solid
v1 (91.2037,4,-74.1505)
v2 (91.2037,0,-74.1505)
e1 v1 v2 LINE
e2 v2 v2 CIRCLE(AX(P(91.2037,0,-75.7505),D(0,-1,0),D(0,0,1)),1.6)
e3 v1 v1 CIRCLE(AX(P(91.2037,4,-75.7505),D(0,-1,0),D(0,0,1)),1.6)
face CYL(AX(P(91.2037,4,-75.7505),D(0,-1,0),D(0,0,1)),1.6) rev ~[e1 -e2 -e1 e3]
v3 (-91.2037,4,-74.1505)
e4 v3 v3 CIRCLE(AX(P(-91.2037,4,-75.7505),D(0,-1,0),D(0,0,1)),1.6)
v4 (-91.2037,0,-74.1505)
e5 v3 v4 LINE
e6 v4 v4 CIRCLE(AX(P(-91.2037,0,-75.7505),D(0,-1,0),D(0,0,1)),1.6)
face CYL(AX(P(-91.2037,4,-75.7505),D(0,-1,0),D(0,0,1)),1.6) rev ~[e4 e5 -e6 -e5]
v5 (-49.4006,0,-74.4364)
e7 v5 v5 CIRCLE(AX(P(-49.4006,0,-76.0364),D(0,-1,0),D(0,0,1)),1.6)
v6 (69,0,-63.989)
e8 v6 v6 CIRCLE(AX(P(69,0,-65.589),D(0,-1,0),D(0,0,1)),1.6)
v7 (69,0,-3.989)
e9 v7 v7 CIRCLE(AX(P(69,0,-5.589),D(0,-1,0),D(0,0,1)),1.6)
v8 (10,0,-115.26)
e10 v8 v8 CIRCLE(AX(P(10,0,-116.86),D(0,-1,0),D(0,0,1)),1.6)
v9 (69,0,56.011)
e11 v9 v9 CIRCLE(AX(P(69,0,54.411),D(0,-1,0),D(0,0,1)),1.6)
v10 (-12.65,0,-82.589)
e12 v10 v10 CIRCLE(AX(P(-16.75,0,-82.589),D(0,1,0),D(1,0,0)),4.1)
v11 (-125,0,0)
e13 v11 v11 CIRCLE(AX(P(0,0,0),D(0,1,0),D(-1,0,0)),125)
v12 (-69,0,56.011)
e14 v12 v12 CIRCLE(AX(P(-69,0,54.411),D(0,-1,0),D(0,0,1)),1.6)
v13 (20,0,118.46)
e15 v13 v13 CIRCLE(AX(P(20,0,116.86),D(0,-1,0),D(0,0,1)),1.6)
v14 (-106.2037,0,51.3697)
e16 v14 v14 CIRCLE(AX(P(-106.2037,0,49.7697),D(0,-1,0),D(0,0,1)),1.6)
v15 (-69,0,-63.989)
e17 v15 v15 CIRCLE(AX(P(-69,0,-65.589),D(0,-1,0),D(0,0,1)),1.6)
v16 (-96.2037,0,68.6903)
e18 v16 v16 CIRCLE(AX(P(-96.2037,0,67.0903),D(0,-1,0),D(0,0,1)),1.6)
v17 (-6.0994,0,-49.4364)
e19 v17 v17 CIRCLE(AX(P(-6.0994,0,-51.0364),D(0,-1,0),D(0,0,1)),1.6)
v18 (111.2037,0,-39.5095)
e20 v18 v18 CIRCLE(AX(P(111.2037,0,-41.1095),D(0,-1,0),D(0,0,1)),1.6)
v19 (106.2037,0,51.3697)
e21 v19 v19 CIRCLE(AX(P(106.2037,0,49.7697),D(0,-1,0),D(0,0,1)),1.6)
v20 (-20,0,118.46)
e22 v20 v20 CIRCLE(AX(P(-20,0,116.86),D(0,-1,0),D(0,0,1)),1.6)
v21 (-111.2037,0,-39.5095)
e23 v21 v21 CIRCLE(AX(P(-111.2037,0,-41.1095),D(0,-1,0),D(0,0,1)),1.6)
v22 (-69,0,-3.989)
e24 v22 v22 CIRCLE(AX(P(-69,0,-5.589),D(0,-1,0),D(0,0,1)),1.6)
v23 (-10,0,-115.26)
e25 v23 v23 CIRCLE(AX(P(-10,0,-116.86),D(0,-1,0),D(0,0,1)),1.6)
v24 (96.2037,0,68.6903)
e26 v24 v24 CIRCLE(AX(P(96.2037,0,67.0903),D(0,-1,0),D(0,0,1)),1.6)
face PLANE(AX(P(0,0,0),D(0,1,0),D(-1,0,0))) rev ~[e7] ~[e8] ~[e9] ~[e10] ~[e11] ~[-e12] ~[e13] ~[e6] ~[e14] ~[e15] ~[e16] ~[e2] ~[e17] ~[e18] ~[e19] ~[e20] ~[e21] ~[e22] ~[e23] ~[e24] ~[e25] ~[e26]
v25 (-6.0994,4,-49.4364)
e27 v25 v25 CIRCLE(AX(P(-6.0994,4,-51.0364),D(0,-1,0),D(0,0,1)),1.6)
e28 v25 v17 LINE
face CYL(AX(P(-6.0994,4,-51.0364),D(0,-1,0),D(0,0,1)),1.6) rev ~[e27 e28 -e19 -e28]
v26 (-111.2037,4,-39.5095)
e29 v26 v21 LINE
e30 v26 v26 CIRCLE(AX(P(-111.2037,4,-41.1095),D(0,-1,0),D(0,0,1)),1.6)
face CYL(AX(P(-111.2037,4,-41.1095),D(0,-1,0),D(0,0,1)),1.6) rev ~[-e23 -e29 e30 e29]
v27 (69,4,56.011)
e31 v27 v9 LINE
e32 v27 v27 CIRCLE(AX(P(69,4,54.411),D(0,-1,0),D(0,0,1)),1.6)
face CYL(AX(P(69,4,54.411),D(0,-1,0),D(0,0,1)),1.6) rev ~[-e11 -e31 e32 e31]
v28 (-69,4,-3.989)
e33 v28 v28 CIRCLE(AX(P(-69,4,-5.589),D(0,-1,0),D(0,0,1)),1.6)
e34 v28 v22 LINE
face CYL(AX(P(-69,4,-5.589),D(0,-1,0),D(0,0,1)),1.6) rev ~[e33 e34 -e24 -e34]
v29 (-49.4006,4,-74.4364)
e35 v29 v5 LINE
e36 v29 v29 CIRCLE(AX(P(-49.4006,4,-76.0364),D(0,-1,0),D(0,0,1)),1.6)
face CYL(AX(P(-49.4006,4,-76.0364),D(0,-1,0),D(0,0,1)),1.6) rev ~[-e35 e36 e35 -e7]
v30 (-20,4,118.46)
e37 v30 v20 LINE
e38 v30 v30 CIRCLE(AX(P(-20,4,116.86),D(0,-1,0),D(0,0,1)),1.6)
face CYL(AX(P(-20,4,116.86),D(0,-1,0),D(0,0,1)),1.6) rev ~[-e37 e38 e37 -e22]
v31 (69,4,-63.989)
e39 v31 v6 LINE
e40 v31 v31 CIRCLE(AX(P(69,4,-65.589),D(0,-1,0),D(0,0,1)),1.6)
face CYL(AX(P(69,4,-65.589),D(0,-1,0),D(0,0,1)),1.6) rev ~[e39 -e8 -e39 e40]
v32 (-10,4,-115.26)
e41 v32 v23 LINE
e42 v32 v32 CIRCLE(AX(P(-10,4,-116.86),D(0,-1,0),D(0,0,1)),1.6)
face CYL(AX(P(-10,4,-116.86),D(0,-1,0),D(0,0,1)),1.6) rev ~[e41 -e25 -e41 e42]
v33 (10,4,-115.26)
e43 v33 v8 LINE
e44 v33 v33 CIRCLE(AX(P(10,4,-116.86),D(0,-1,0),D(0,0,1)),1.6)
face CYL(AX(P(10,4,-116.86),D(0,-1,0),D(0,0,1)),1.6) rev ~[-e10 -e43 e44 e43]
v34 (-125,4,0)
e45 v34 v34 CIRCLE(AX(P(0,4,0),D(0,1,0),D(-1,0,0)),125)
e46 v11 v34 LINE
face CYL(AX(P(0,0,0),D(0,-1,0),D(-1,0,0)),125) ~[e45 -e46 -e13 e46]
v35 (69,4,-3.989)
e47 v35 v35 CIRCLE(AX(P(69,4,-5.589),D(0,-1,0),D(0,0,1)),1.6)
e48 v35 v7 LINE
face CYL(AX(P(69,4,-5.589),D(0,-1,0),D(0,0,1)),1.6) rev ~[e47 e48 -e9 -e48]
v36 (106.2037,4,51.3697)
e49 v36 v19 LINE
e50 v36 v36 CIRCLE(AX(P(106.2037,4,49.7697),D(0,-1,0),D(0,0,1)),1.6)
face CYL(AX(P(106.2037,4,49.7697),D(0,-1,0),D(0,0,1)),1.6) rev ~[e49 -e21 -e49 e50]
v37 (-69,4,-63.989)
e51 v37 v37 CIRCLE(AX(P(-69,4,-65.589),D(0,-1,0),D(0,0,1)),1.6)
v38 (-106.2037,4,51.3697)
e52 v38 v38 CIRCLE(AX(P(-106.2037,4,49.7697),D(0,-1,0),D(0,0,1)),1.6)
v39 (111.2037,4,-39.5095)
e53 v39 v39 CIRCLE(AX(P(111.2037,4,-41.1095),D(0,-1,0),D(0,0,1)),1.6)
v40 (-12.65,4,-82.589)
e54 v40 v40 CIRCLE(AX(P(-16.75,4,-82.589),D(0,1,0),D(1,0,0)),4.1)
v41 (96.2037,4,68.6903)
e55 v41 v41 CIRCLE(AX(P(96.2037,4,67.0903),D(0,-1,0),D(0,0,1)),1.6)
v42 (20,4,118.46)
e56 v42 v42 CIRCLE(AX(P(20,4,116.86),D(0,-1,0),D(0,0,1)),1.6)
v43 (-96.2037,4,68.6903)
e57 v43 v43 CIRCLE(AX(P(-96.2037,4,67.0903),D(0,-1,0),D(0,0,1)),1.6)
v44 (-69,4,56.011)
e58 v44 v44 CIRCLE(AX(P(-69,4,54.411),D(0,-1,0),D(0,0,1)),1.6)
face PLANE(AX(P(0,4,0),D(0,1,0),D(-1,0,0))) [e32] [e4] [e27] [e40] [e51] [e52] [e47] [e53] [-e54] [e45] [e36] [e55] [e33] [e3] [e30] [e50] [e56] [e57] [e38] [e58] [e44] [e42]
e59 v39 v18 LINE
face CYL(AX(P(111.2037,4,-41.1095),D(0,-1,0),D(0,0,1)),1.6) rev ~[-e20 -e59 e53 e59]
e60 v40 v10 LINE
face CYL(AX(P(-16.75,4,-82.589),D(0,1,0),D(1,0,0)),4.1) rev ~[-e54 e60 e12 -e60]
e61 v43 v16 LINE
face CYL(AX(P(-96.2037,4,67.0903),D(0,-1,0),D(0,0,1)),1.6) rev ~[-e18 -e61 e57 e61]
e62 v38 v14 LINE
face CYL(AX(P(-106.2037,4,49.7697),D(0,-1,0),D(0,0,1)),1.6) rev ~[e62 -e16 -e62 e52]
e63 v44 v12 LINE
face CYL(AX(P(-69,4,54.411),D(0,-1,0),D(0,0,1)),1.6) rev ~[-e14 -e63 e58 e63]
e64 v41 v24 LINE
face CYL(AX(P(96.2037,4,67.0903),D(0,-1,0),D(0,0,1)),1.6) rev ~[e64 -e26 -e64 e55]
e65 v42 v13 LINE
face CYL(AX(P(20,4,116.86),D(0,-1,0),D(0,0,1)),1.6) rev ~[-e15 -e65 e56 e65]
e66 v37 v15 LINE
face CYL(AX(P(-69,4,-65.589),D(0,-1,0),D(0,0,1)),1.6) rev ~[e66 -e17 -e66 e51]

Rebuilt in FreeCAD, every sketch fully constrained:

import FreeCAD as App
import Part
import Sketcher

V = App.Vector

doc = App.newDocument("Part")
params = doc.addObject("Spreadsheet::Sheet", "Params")
for row, (alias, value) in enumerate([
    ("sketch1_diameter", "250 mm"),
    ("pad1_length", "4 mm"),
    ("sketch2_diameter", "8.2 mm"),
    ("pocket1_length", "4 mm"),
    ("sketch3_diameter", "3.2 mm"),
    ("hole_diameter", "3.2 mm"),
    ("sketch4_diameter", "3.2 mm"),
    ("hole2_diameter", "3.2 mm"),
    ("hole2_depth", "10 mm"),
    ("sketch5_diameter", "3.2 mm"),
    ("hole3_diameter", "3.2 mm"),
    ("hole3_depth", "10 mm"),
    ("sketch6_diameter", "3.2 mm"),
    ("hole4_diameter", "3.2 mm"),
    ("hole4_depth", "10 mm"),
], start=1):
    params.set(f"A{row}", alias)
    params.set(f"B{row}", "=" + value)
    params.setAlias(f"B{row}", alias)

body = doc.addObject("PartDesign::Body", "Body")

# Sketch on XZ plane
sketch1 = body.newObject("Sketcher::SketchObject", "Sketch")
sketch1.AttachmentSupport = (doc.getObject("XZ_Plane"), [""])
sketch1.MapMode = "FlatFace"
sketch1.addGeometry(Part.Circle(V(0, 0, 0), V(0, 0, 1), 125), False)
sketch1.addConstraint(Sketcher.Constraint("Coincident", 0, 3, -1, 1))
sketch1.addConstraint(Sketcher.Constraint("Diameter", 0, 250.0))
sketch1.setExpression("Constraints[1]", "Params.sketch1_diameter")
pad1 = body.newObject("PartDesign::Pad", "Pad")
pad1.Profile = sketch1
pad1.setExpression("Length", "Params.pad1_length")
pad1.Reversed = True

# Sketch on XZ plane
sketch2 = body.newObject("Sketcher::SketchObject", "Sketch001")
sketch2.AttachmentSupport = (doc.getObject("XZ_Plane"), [""])
sketch2.MapMode = "FlatFace"
sketch2.AttachmentOffset = App.Placement(V(0, 0, -4), App.Rotation())
sketch2.addGeometry(Part.Circle(V(-16.8, -82.6, 0), V(0, 0, 1), 4.1), False)
sketch2.addConstraint(Sketcher.Constraint("Diameter", 0, 8.2))
sketch2.addConstraint(Sketcher.Constraint("DistanceX", 0, 3, -1, 1, 16.75))
sketch2.addConstraint(Sketcher.Constraint("DistanceY", 0, 3, -1, 1, 82.589))
sketch2.setExpression("Constraints[0]", "Params.sketch2_diameter")
pocket1 = body.newObject("PartDesign::Pocket", "Pocket")
pocket1.Profile = sketch2
pocket1.setExpression("Length", "Params.pocket1_length")
pocket1.Reversed = True

# Sketch on XZ plane
sketch3 = body.newObject("Sketcher::SketchObject", "Sketch002")
sketch3.AttachmentSupport = (doc.getObject("XZ_Plane"), [""])
sketch3.MapMode = "FlatFace"
sketch3.AttachmentOffset = App.Placement(V(0, 0, -4), App.Rotation())
sketch3.addGeometry(Part.Circle(V(69, 54.4, 0), V(0, 0, 1), 1.6), False)
sketch3.addGeometry(Part.Circle(V(69, -5.6, 0), V(0, 0, 1), 1.6), False)
sketch3.addGeometry(Part.Circle(V(69, -65.6, 0), V(0, 0, 1), 1.6), False)
sketch3.addGeometry(Part.Circle(V(-69, -65.6, 0), V(0, 0, 1), 1.6), False)
sketch3.addGeometry(Part.Circle(V(-69, -5.6, 0), V(0, 0, 1), 1.6), False)
sketch3.addGeometry(Part.Circle(V(-69, 54.4, 0), V(0, 0, 1), 1.6), False)
sketch3.addConstraint(Sketcher.Constraint("Equal", 0, 1))
sketch3.addConstraint(Sketcher.Constraint("Equal", 1, 2))
sketch3.addConstraint(Sketcher.Constraint("Equal", 2, 3))
sketch3.addConstraint(Sketcher.Constraint("Equal", 3, 4))
sketch3.addConstraint(Sketcher.Constraint("Equal", 4, 5))
sketch3.addConstraint(Sketcher.Constraint("Symmetric", 2, 3, 3, 3, -2))
sketch3.addConstraint(Sketcher.Constraint("Symmetric", 1, 3, 4, 3, -2))
sketch3.addConstraint(Sketcher.Constraint("Symmetric", 0, 3, 5, 3, -2))
sketch3.addConstraint(Sketcher.Constraint("Vertical", 0, 3, 1, 3))
sketch3.addConstraint(Sketcher.Constraint("Vertical", 1, 3, 2, 3))
sketch3.addConstraint(Sketcher.Constraint("Diameter", 0, 3.2))
sketch3.addConstraint(Sketcher.Constraint("DistanceX", -1, 1, 0, 3, 69.0))
sketch3.addConstraint(Sketcher.Constraint("DistanceY", 1, 3, 0, 3, 60.0))
sketch3.addConstraint(Sketcher.Constraint("DistanceY", 2, 3, 1, 3, 60.0))
sketch3.addConstraint(Sketcher.Constraint("DistanceY", -1, 1, 0, 3, 54.411))
sketch3.setExpression("Constraints[10]", "Params.sketch3_diameter")
doc.recompute()
hole = body.newObject("PartDesign::Hole", "Hole")
hole.Profile = sketch3
hole.ThreadType = "None"
hole.setExpression("Diameter", "Params.hole_diameter")
hole.DepthType = "ThroughAll"
hole.Reversed = True

# Sketch on XZ plane
sketch4 = body.newObject("Sketcher::SketchObject", "Sketch003")
sketch4.AttachmentSupport = (doc.getObject("XZ_Plane"), [""])
sketch4.MapMode = "FlatFace"
sketch4.AttachmentOffset = App.Placement(V(0, 0, -4), App.Rotation())
sketch4.addGeometry(Part.Circle(V(20, 116.9, 0), V(0, 0, 1), 1.6), False)
sketch4.addGeometry(Part.Circle(V(-20, 116.9, 0), V(0, 0, 1), 1.6), False)
sketch4.addGeometry(Part.Circle(V(111.2, -41.1, 0), V(0, 0, 1), 1.6), False)
sketch4.addGeometry(Part.Circle(V(91.2, -75.8, 0), V(0, 0, 1), 1.6), False)
sketch4.addGeometry(Part.Circle(V(-91.2, -75.8, 0), V(0, 0, 1), 1.6), False)
sketch4.addGeometry(Part.Circle(V(-111.2, -41.1, 0), V(0, 0, 1), 1.6), False)
sketch4.addConstraint(Sketcher.Constraint("Equal", 0, 1))
sketch4.addConstraint(Sketcher.Constraint("Equal", 1, 2))
sketch4.addConstraint(Sketcher.Constraint("Equal", 2, 3))
sketch4.addConstraint(Sketcher.Constraint("Equal", 3, 4))
sketch4.addConstraint(Sketcher.Constraint("Equal", 4, 5))
sketch4.addConstraint(Sketcher.Constraint("Symmetric", 0, 3, 1, 3, -2))
sketch4.addConstraint(Sketcher.Constraint("Symmetric", 3, 3, 4, 3, -2))
sketch4.addConstraint(Sketcher.Constraint("Symmetric", 2, 3, 5, 3, -2))
sketch4.addConstraint(Sketcher.Constraint("Diameter", 0, 3.2))
sketch4.addConstraint(Sketcher.Constraint("DistanceX", -1, 1, 0, 3, 20.0))
sketch4.addConstraint(Sketcher.Constraint("DistanceX", 3, 3, 2, 3, 20.0))
sketch4.addConstraint(Sketcher.Constraint("DistanceY", -1, 1, 0, 3, 116.86))
sketch4.addConstraint(Sketcher.Constraint("DistanceY", 3, 3, 2, 3, 34.641))
sketch4.addConstraint(Sketcher.Constraint("DistanceX", -1, 1, 2, 3, 111.2037))
sketch4.addConstraint(Sketcher.Constraint("DistanceY", 2, 3, -1, 1, 41.1095))
sketch4.setExpression("Constraints[8]", "Params.sketch4_diameter")
doc.recompute()
hole2 = body.newObject("PartDesign::Hole", "Hole001")
hole2.Profile = sketch4
hole2.ThreadType = "None"
hole2.setExpression("Diameter", "Params.hole2_diameter")
hole2.DepthType = "Dimension"
hole2.setExpression("Depth", "Params.hole2_depth")
hole2.DrillPoint = "Flat"
hole2.Reversed = True

# Sketch on XZ plane
sketch5 = body.newObject("Sketcher::SketchObject", "Sketch004")
sketch5.AttachmentSupport = (doc.getObject("XZ_Plane"), [""])
sketch5.MapMode = "FlatFace"
sketch5.AttachmentOffset = App.Placement(V(0, 0, -4), App.Rotation())
sketch5.addGeometry(Part.Circle(V(-10, -116.9, 0), V(0, 0, 1), 1.6), False)
sketch5.addGeometry(Part.Circle(V(10, -116.9, 0), V(0, 0, 1), 1.6), False)
sketch5.addGeometry(Part.Circle(V(-106.2, 49.8, 0), V(0, 0, 1), 1.6), False)
sketch5.addGeometry(Part.Circle(V(-96.2, 67.1, 0), V(0, 0, 1), 1.6), False)
sketch5.addGeometry(Part.Circle(V(96.2, 67.1, 0), V(0, 0, 1), 1.6), False)
sketch5.addGeometry(Part.Circle(V(106.2, 49.8, 0), V(0, 0, 1), 1.6), False)
sketch5.addConstraint(Sketcher.Constraint("Equal", 0, 1))
sketch5.addConstraint(Sketcher.Constraint("Equal", 1, 2))
sketch5.addConstraint(Sketcher.Constraint("Equal", 2, 3))
sketch5.addConstraint(Sketcher.Constraint("Equal", 3, 4))
sketch5.addConstraint(Sketcher.Constraint("Equal", 4, 5))
sketch5.addConstraint(Sketcher.Constraint("Symmetric", 0, 3, 1, 3, -2))
sketch5.addConstraint(Sketcher.Constraint("Symmetric", 3, 3, 4, 3, -2))
sketch5.addConstraint(Sketcher.Constraint("Symmetric", 2, 3, 5, 3, -2))
sketch5.addConstraint(Sketcher.Constraint("Diameter", 0, 3.2))
sketch5.addConstraint(Sketcher.Constraint("DistanceX", 0, 3, -1, 1, 10.0))
sketch5.addConstraint(Sketcher.Constraint("DistanceX", 2, 3, 3, 3, 10.0))
sketch5.addConstraint(Sketcher.Constraint("DistanceY", 0, 3, -1, 1, 116.86))
sketch5.addConstraint(Sketcher.Constraint("DistanceX", 2, 3, -1, 1, 106.2037))
sketch5.addConstraint(Sketcher.Constraint("DistanceY", -1, 1, 2, 3, 49.7697))
sketch5.addConstraint(Sketcher.Constraint("DistanceY", -1, 1, 3, 3, 67.0903))
sketch5.setExpression("Constraints[8]", "Params.sketch5_diameter")
doc.recompute()
hole3 = body.newObject("PartDesign::Hole", "Hole002")
hole3.Profile = sketch5
hole3.ThreadType = "None"
hole3.setExpression("Diameter", "Params.hole3_diameter")
hole3.DepthType = "Dimension"
hole3.setExpression("Depth", "Params.hole3_depth")
hole3.DrillPoint = "Flat"
hole3.Reversed = True

# Sketch on XZ plane
sketch6 = body.newObject("Sketcher::SketchObject", "Sketch005")
sketch6.AttachmentSupport = (doc.getObject("XZ_Plane"), [""])
sketch6.MapMode = "FlatFace"
sketch6.AttachmentOffset = App.Placement(V(0, 0, -4), App.Rotation())
sketch6.addGeometry(Part.Circle(V(-49.4, -76, 0), V(0, 0, 1), 1.6), False)
sketch6.addGeometry(Part.Circle(V(-6.1, -51, 0), V(0, 0, 1), 1.6), False)
sketch6.addConstraint(Sketcher.Constraint("Equal", 0, 1))
sketch6.addConstraint(Sketcher.Constraint("Diameter", 0, 3.2))
sketch6.addConstraint(Sketcher.Constraint("DistanceY", 0, 3, 1, 3, 25.0))
sketch6.addConstraint(Sketcher.Constraint("DistanceX", 0, 3, -1, 1, 49.4006))
sketch6.addConstraint(Sketcher.Constraint("DistanceY", 0, 3, -1, 1, 76.0364))
sketch6.addConstraint(Sketcher.Constraint("DistanceX", 1, 3, -1, 1, 6.0994))
sketch6.setExpression("Constraints[1]", "Params.sketch6_diameter")
doc.recompute()
hole4 = body.newObject("PartDesign::Hole", "Hole003")
hole4.Profile = sketch6
hole4.ThreadType = "None"
hole4.setExpression("Diameter", "Params.hole4_diameter")
hole4.DepthType = "Dimension"
hole4.setExpression("Depth", "Params.hole4_depth")
hole4.DrillPoint = "Flat"
hole4.Reversed = True

doc.recompute()
